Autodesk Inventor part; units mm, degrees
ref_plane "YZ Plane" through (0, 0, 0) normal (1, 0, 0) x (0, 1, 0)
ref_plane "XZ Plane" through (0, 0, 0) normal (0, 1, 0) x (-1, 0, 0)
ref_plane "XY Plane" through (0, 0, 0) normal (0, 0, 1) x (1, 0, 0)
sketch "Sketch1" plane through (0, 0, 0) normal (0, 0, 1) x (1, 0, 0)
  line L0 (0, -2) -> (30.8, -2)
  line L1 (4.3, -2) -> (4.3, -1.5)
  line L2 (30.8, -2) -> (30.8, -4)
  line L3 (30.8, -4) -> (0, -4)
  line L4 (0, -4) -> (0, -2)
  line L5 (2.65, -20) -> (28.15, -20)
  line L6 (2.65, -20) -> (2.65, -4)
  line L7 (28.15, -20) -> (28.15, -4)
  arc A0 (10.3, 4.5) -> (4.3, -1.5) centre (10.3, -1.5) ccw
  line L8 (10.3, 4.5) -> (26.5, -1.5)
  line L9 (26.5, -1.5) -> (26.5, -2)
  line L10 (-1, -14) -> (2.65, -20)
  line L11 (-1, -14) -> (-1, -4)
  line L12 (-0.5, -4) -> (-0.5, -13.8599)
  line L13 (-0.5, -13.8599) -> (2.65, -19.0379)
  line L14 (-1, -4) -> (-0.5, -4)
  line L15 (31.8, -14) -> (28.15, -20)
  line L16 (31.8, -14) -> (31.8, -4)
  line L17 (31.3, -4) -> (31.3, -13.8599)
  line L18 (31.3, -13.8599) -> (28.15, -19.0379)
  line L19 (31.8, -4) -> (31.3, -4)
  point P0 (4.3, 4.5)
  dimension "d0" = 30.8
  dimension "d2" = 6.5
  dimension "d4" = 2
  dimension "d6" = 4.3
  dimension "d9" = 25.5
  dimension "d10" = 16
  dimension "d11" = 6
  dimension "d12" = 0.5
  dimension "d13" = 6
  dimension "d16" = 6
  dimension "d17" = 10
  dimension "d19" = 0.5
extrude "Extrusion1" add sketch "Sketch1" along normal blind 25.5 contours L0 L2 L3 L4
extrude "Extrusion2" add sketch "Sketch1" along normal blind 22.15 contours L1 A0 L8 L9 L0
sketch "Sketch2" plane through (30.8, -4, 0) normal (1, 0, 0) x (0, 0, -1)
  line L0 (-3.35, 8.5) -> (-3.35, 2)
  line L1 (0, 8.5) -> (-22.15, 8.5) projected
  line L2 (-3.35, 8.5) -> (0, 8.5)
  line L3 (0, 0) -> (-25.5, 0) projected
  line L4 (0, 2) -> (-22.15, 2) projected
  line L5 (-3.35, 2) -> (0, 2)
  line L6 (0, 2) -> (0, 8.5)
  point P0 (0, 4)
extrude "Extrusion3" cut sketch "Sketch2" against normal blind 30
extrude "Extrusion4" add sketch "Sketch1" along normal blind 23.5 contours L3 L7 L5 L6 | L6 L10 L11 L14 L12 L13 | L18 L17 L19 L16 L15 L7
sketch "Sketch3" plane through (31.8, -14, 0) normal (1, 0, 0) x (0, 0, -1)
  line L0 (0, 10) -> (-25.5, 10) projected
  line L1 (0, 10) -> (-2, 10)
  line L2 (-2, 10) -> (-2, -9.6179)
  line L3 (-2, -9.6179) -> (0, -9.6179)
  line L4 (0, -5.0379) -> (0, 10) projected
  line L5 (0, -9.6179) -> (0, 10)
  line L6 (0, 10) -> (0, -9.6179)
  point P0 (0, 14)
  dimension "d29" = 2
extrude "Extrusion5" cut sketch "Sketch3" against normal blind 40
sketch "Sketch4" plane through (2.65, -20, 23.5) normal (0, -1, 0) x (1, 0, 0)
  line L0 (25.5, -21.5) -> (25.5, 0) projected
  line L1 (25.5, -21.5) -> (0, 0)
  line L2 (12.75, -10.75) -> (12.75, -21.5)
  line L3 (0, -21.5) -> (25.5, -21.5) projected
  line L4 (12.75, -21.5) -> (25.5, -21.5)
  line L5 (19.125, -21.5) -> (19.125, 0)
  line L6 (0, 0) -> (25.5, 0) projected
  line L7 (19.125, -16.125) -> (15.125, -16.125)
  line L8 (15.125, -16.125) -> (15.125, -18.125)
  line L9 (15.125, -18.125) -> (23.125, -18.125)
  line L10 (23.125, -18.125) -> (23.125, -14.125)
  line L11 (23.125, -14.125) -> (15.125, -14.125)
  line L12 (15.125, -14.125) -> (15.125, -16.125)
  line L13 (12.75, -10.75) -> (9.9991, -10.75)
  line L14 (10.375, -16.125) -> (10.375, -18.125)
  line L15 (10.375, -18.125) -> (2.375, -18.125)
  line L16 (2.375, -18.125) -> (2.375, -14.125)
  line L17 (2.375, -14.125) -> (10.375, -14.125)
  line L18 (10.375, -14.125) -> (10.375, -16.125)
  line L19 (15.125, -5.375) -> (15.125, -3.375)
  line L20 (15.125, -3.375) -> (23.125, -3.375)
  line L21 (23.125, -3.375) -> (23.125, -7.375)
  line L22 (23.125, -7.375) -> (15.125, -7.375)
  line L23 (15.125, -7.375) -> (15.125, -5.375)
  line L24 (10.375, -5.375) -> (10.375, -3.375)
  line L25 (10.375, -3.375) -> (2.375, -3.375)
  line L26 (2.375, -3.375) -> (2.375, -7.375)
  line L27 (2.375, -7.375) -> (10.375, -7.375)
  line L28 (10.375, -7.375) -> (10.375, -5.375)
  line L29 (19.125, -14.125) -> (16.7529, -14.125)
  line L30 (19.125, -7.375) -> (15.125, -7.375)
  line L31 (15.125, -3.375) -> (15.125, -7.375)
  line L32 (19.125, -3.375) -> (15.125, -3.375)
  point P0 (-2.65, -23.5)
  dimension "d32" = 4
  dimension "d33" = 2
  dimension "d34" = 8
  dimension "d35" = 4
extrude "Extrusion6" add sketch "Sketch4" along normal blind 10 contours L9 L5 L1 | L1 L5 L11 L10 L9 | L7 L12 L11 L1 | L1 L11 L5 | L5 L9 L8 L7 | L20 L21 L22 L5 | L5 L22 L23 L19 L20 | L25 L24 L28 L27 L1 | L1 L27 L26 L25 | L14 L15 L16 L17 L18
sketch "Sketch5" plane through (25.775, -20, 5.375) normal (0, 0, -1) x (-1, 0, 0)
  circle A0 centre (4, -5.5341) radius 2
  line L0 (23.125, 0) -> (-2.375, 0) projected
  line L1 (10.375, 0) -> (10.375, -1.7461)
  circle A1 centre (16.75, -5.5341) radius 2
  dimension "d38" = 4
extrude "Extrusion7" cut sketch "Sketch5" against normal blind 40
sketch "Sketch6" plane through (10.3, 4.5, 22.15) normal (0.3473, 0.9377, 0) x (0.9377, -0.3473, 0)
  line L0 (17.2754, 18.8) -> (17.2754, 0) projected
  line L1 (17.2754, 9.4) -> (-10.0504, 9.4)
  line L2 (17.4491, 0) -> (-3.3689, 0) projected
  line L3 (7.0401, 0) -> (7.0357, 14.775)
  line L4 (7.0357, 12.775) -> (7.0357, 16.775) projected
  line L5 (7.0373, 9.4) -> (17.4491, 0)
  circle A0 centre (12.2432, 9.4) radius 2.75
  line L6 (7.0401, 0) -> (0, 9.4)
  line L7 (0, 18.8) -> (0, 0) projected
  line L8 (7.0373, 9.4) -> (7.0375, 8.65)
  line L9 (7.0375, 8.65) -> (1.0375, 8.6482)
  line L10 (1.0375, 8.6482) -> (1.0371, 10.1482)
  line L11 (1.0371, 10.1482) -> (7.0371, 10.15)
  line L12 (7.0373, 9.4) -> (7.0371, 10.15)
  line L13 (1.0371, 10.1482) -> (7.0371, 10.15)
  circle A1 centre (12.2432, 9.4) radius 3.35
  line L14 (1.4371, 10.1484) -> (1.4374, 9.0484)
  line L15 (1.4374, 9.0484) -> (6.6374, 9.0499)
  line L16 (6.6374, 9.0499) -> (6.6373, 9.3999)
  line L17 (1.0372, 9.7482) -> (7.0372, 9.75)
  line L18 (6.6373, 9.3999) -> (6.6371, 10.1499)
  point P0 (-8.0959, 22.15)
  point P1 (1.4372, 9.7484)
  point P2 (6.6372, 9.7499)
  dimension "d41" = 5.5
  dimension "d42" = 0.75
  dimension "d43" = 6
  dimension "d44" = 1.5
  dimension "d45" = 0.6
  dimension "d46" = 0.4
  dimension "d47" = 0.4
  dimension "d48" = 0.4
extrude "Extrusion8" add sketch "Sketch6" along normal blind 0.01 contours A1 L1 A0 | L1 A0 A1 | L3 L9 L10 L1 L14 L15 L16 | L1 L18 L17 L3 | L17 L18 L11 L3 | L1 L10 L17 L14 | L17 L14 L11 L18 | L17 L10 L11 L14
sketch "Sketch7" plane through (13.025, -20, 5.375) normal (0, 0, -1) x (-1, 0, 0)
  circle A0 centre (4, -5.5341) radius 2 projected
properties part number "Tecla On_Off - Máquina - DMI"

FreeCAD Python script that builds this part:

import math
import FreeCAD as App
import Part
import Sketcher

V = App.Vector


def add_polygon(sketch, points):
    """Adds a closed chain of lines whose ends are joined by coincident constraints."""
    first, n = sketch.GeometryCount, len(points)
    for a, b in zip(points, points[1:] + points[:1]):
        sketch.addGeometry(Part.LineSegment(App.Vector(*a, 0), App.Vector(*b, 0)), False)
    for i in range(n):
        sketch.addConstraint(Sketcher.Constraint("Coincident", first + i, 2, first + (i + 1) % n, 1))

doc = App.newDocument("Part")
body = doc.addObject("PartDesign::Body", "Body")

sketch1 = body.newObject("Sketcher::SketchObject", "Sketch")
sketch1.AttachmentSupport = (doc.getObject("XY_Plane"), [""])
sketch1.MapMode = "FlatFace"
add_polygon(sketch1, [(30.8, -2), (0, -2), (0, -4), (30.8, -4)])
sketch1.addConstraint([
    Sketcher.Constraint("Horizontal", 0),
    Sketcher.Constraint("Vertical", 1),
    Sketcher.Constraint("Horizontal", 2),
    Sketcher.Constraint("Vertical", 3),
    Sketcher.Constraint("PointOnObject", 0, 2, -2),
    Sketcher.Constraint("DistanceY", 1, 2, 1, 1, 2.0),
    Sketcher.Constraint("DistanceX", 0, 2, 0, 1, 30.8),
    Sketcher.Constraint("DistanceY", 0, 2, -1, 1, 2.0),
])
pad1 = body.newObject("PartDesign::Pad", "Pad")
pad1.Profile = sketch1
pad1.Length = 25.5

sketch2 = body.newObject("Sketcher::SketchObject", "Sketch001")
sketch2.AttachmentSupport = (doc.getObject("XY_Plane"), [""])
sketch2.MapMode = "FlatFace"
sketch2.addGeometry([
    Part.LineSegment(V(4.3, -1.5, 0), V(4.3, -2, 0)),
    Part.LineSegment(V(4.3, -2, 0), V(26.5, -2, 0)),
    Part.LineSegment(V(26.5, -2, 0), V(26.5, -1.5, 0)),
    Part.LineSegment(V(26.5, -1.5, 0), V(10.3, 4.5, 0)),
    Part.ArcOfCircle(Part.Circle(V(10.3, -1.5, 0), V(0, 0, 1), 6), math.radians(90), math.radians(180)),
], False)
sketch2.addConstraint([
    Sketcher.Constraint("Coincident", 0, 2, 1, 1),
    Sketcher.Constraint("Coincident", 1, 2, 2, 1),
    Sketcher.Constraint("Coincident", 2, 2, 3, 1),
    Sketcher.Constraint("Coincident", 3, 2, 4, 1),
    Sketcher.Constraint("Tangent", 4, 2, 0, 1),
    Sketcher.Constraint("Vertical", 0),
    Sketcher.Constraint("Horizontal", 1),
    Sketcher.Constraint("Vertical", 2),
    Sketcher.Constraint("Horizontal", 4, 3, 2, 2),
    Sketcher.Constraint("Vertical", 4, 3, 3, 2),
    Sketcher.Constraint("Radius", 4, 6.0),
    Sketcher.Constraint("DistanceY", 0, 2, 0, 1, 0.5),
    Sketcher.Constraint("DistanceY", 0, 2, -1, 1, 2.0),
    Sketcher.Constraint("DistanceX", -1, 1, 0, 2, 4.3),
    Sketcher.Constraint("DistanceX", 1, 1, 1, 2, 22.2),
])
pad2 = body.newObject("PartDesign::Pad", "Pad001")
pad2.Profile = sketch2
pad2.Length = 22.15

sketch3 = body.newObject("Sketcher::SketchObject", "Sketch002")
sketch3.AttachmentSupport = (doc.getObject("YZ_Plane"), [""])
sketch3.MapMode = "FlatFace"
sketch3.AttachmentOffset = App.Placement(V(0, 0, 30.8), App.Rotation())
add_polygon(sketch3, [(4.5, 0), (4.5, 3.4), (-2, 3.4), (-2, 0)])
sketch3.addConstraint([
    Sketcher.Constraint("Vertical", 0),
    Sketcher.Constraint("Horizontal", 1),
    Sketcher.Constraint("Vertical", 2),
    Sketcher.Constraint("Horizontal", 3),
    Sketcher.Constraint("PointOnObject", 2, 2, -1),
    Sketcher.Constraint("DistanceX", 1, 2, 1, 1, 6.5),
    Sketcher.Constraint("DistanceX", 1, 2, -1, 1, 2.0),
    Sketcher.Constraint("DistanceY", 0, 1, 0, 2, 3.35),
])
pocket1 = body.newObject("PartDesign::Pocket", "Pocket")
pocket1.Profile = sketch3
pocket1.Length = 30

sketch4 = body.newObject("Sketcher::SketchObject", "Sketch003")
sketch4.AttachmentSupport = (doc.getObject("XY_Plane"), [""])
sketch4.MapMode = "FlatFace"
add_polygon(sketch4, [(28.1, -4), (2.6, -4), (2.6, -19), (-0.5, -13.9), (-0.5, -4), (-1, -4), (-1, -14), (2.6, -20), (28.1, -20), (31.8, -14), (31.8, -4), (31.3, -4), (31.3, -13.9), (28.1, -19)])
sketch4.addConstraint([
    Sketcher.Constraint("Horizontal", 0),
    Sketcher.Constraint("Vertical", 1),
    Sketcher.Constraint("Vertical", 3),
    Sketcher.Constraint("Horizontal", 4),
    Sketcher.Constraint("Vertical", 5),
    Sketcher.Constraint("Horizontal", 7),
    Sketcher.Constraint("Vertical", 9),
    Sketcher.Constraint("Horizontal", 10),
    Sketcher.Constraint("Vertical", 11),
    Sketcher.Constraint("Vertical", 13),
    Sketcher.Constraint("Parallel", 2, 6),
    Sketcher.Constraint("Parallel", 8, 12),
    Sketcher.Constraint("Horizontal", 0, 2, 3, 2),
    Sketcher.Constraint("Horizontal", 5, 2, 8, 2),
    Sketcher.Constraint("Horizontal", 4, 2, 9, 2),
    Sketcher.Constraint("Horizontal", 2, 2, 11, 2),
    Sketcher.Constraint("Horizontal", 1, 2, 12, 2),
    Sketcher.Constraint("Vertical", 1, 2, 6, 2),
    Sketcher.Constraint("Vertical", 7, 2, 12, 2),
    Sketcher.Constraint("Equal", 4, 10),
    Sketcher.Constraint("DistanceY", 5, 2, 5, 1, 10.0),
    Sketcher.Constraint("DistanceX", 0, 2, 0, 1, 25.5),
    Sketcher.Constraint("DistanceX", 4, 2, 4, 1, 0.5),
    Sketcher.Constraint("DistanceY", 6, 2, 5, 2, 6.0),
    Sketcher.Constraint("DistanceX", 2, 2, -1, 1, 0.5),
    Sketcher.Constraint("DistanceY", 0, 2, -1, 1, 4.0),
    Sketcher.Constraint("DistanceY", 3, 1, 3, 2, 9.86),
    Sketcher.Constraint("DistanceX", -1, 1, 8, 2, 31.8),
])
pad3 = body.newObject("PartDesign::Pad", "Pad002")
pad3.Profile = sketch4
pad3.Length = 23.5

sketch5 = body.newObject("Sketcher::SketchObject", "Sketch004")
sketch5.AttachmentSupport = (doc.getObject("YZ_Plane"), [""])
sketch5.MapMode = "FlatFace"
sketch5.AttachmentOffset = App.Placement(V(0, 0, 31.8), App.Rotation())
add_polygon(sketch5, [(-23.6, 0), (-4, 0), (-4, 2), (-23.6, 2)])
sketch5.addConstraint([
    Sketcher.Constraint("Horizontal", 0),
    Sketcher.Constraint("Vertical", 1),
    Sketcher.Constraint("Horizontal", 2),
    Sketcher.Constraint("Vertical", 3),
    Sketcher.Constraint("PointOnObject", 0, 2, -1),
    Sketcher.Constraint("DistanceY", 1, 1, 1, 2, 2.0),
    Sketcher.Constraint("DistanceX", 0, 2, -1, 1, 4.0),
    Sketcher.Constraint("DistanceX", 0, 1, 0, 2, 19.618),
])
pocket2 = body.newObject("PartDesign::Pocket", "Pocket001")
pocket2.Profile = sketch5
pocket2.Length = 40

sketch6 = body.newObject("Sketcher::SketchObject", "Sketch005")
sketch6.AttachmentSupport = (doc.getObject("XZ_Plane"), [""])
sketch6.MapMode = "FlatFace"
sketch6.AttachmentOffset = App.Placement(V(0, 0, 20), App.Rotation())
add_polygon(sketch6, [(25.8, 5.4), (25.8, 9.4), (17.8, 9.4), (17.8, 5.4)])
add_polygon(sketch6, [(25.8, 20.1), (17.8, 20.1), (17.8, 16.1), (25.8, 16.1)])
add_polygon(sketch6, [(13, 20.1), (5, 20.1), (5, 16.1), (13, 16.1)])
add_polygon(sketch6, [(13, 5.4), (13, 9.4), (5, 9.4), (5, 5.4)])
sketch6.addConstraint([
    Sketcher.Constraint("Vertical", 0),
    Sketcher.Constraint("Horizontal", 1),
    Sketcher.Constraint("Vertical", 2),
    Sketcher.Constraint("Horizontal", 3),
    Sketcher.Constraint("Horizontal", 4),
    Sketcher.Constraint("Vertical", 5),
    Sketcher.Constraint("Horizontal", 6),
    Sketcher.Constraint("Vertical", 7),
    Sketcher.Constraint("Horizontal", 8),
    Sketcher.Constraint("Vertical", 9),
    Sketcher.Constraint("Horizontal", 10),
    Sketcher.Constraint("Vertical", 11),
    Sketcher.Constraint("Vertical", 12),
    Sketcher.Constraint("Horizontal", 13),
    Sketcher.Constraint("Vertical", 14),
    Sketcher.Constraint("Horizontal", 15),
    Sketcher.Constraint("Horizontal", 7, 2, 8, 2),
    Sketcher.Constraint("Horizontal", 6, 2, 9, 2),
    Sketcher.Constraint("Horizontal", 1, 2, 12, 2),
    Sketcher.Constraint("Horizontal", 3, 2, 14, 2),
    Sketcher.Constraint("Vertical", 2, 2, 4, 2),
    Sketcher.Constraint("Vertical", 3, 2, 6, 2),
    Sketcher.Constraint("Vertical", 11, 2, 12, 2),
    Sketcher.Constraint("Vertical", 9, 2, 13, 2),
    Sketcher.Constraint("Equal", 6, 8),
    Sketcher.Constraint("Equal", 2, 5),
    Sketcher.Constraint("DistanceX", 1, 2, 1, 1, 8.0),
    Sketcher.Constraint("DistanceY", 0, 1, 0, 2, 4.0),
    Sketcher.Constraint("DistanceY", 1, 2, 4, 2, 10.75),
    Sketcher.Constraint("DistanceX", 8, 2, 4, 2, 12.75),
    Sketcher.Constraint("DistanceX", -1, 1, 0, 2, 25.775),
    Sketcher.Constraint("DistanceY", -1, 1, 0, 2, 9.375),
])
pad4 = body.newObject("PartDesign::Pad", "Pad003")
pad4.Profile = sketch6
pad4.Length = 10

sketch7 = body.newObject("Sketcher::SketchObject", "Sketch006")
sketch7.AttachmentSupport = (doc.getObject("XY_Plane"), [""])
sketch7.MapMode = "FlatFace"
sketch7.AttachmentOffset = App.Placement(V(0, 0, 5.375), App.Rotation())
sketch7.addGeometry([
    Part.Circle(V(21.8, -25.5, 0), V(0, 0, 1), 2),
    Part.Circle(V(9, -25.5, 0), V(0, 0, 1), 2),
], False)
sketch7.addConstraint([
    Sketcher.Constraint("Equal", 0, 1),
    Sketcher.Constraint("Horizontal", 0, 3, 1, 3),
    Sketcher.Constraint("Diameter", 0, 4.0),
    Sketcher.Constraint("DistanceX", 1, 3, 0, 3, 12.75),
    Sketcher.Constraint("DistanceX", -1, 1, 0, 3, 21.775),
    Sketcher.Constraint("DistanceY", 0, 3, -1, 1, 25.534),
])
pocket3 = body.newObject("PartDesign::Pocket", "Pocket002")
pocket3.Profile = sketch7
pocket3.Length = 40
pocket3.Reversed = True

sketch8 = body.newObject("Sketcher::SketchObject", "Sketch007")
sketch8.Placement = App.Placement(V(10.3, 4.5, 22.15), App.Rotation(V(0.937747554, -0.347317613, 0), V(0, 0, -0.999999999), V(0.347317613, 0.937747554, 0), "ZXY"))
sketch8.addGeometry(Part.Circle(V(12.24, 9.4, 0), V(0, 0, 1), 3.35), False)
sketch8.addGeometry(Part.Circle(V(12.24, 9.4, 0), V(0, 0, 1), 2.75), False)
add_polygon(sketch8, [(7.04, 8.65), (7.04, 10.15), (1.04, 10.15), (1.04, 8.65)])
add_polygon(sketch8, [(1.44, 9.05), (1.44, 9.75), (6.64, 9.75), (6.64, 9.4), (6.64, 9.05)])
sketch8.addConstraint([
    Sketcher.Constraint("Vertical", 6),
    Sketcher.Constraint("Vertical", 8),
    Sketcher.Constraint("Vertical", 9),
    Sketcher.Constraint("Coincident", 1, 3, 0, 3),
    Sketcher.Constraint("Perpendicular", 2, 3),
    Sketcher.Constraint("Perpendicular", 3, 4),
    Sketcher.Constraint("Perpendicular", 4, 5),
    Sketcher.Constraint("Parallel", 5, 7),
    Sketcher.Constraint("Parallel", 7, 10),
    Sketcher.Constraint("Horizontal", 1, 3, 8, 2),
    Sketcher.Constraint("Equal", 8, 9),
    Sketcher.Constraint("Diameter", 1, 5.5),
    Sketcher.Constraint("Distance", 3, 6.0),
    Sketcher.Constraint("Distance", 2, 1.5),
    Sketcher.Constraint("Diameter", 0, 6.7),
    Sketcher.Constraint("DistanceX", 3, 2, 6, 2, 0.4),
    Sketcher.Constraint("DistanceX", 7, 2, 2, 2, 0.4),
    Sketcher.Constraint("DistanceY", 7, 2, 2, 2, 0.4),
    Sketcher.Constraint("DistanceX", 9, 2, 5, 2, 0.4),
    Sketcher.Constraint("DistanceY", 5, 2, 9, 2, 0.4),
    Sketcher.Constraint("DistanceY", -1, 1, 0, 3, 9.4),
    Sketcher.Constraint("DistanceX", -1, 1, 2, 2, 7.037),
    Sketcher.Constraint("DistanceX", 2, 2, 0, 3, 5.206),
])
pad5 = body.newObject("PartDesign::Pad", "Pad004")
pad5.Profile = sketch8
pad5.Length = 0.01

doc.recompute()
